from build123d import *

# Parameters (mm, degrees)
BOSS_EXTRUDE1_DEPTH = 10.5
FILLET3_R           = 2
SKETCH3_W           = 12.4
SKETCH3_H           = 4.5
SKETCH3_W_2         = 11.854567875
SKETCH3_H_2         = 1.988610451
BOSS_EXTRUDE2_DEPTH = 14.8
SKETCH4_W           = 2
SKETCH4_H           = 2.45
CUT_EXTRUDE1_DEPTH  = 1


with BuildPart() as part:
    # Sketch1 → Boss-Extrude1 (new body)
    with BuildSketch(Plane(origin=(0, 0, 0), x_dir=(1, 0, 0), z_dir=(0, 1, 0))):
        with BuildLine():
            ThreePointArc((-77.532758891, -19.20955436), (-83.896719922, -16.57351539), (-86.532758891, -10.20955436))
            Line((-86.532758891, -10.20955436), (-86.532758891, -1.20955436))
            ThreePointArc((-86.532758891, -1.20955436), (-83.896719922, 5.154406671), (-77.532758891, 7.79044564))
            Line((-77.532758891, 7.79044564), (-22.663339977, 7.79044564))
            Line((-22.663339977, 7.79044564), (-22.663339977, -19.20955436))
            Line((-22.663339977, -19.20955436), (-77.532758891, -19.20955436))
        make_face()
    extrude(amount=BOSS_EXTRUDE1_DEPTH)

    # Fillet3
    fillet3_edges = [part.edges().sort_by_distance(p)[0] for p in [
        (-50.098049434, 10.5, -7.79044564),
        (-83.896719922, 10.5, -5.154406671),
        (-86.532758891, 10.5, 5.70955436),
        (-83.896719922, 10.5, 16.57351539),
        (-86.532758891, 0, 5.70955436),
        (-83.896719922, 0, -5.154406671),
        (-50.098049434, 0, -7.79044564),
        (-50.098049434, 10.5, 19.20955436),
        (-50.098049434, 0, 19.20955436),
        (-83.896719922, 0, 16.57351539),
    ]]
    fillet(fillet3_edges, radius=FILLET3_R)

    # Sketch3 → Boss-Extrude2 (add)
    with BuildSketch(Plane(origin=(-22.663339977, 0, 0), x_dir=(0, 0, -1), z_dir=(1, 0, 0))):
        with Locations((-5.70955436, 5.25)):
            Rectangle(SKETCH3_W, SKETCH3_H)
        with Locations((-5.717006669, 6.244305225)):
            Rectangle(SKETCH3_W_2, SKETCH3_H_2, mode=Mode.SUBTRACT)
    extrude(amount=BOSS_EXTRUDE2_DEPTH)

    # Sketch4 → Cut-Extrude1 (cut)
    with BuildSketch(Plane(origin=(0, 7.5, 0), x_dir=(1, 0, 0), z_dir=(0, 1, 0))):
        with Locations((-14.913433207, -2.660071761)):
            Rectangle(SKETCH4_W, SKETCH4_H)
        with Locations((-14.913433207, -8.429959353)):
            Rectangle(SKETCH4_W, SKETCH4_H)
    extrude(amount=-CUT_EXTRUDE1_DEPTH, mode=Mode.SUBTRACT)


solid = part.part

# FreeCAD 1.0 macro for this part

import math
import FreeCAD as App
import Part
import Sketcher

V = App.Vector


def edges_at(feature, points):
    """Names of the edges that pass closest to the given points."""
    edges = feature.Shape.Edges
    near = lambda p: min(range(len(edges)), key=lambda i: edges[i].distToShape(Part.Vertex(*p))[0])
    return sorted({f"Edge{near(p) + 1}" for p in points})


def add_polygon(sketch, points):
    """Adds a closed chain of lines whose ends are joined by coincident constraints."""
    first, n = sketch.GeometryCount, len(points)
    for a, b in zip(points, points[1:] + points[:1]):
        sketch.addGeometry(Part.LineSegment(App.Vector(*a, 0), App.Vector(*b, 0)), False)
    for i in range(n):
        sketch.addConstraint(Sketcher.Constraint("Coincident", first + i, 2, first + (i + 1) % n, 1))

doc = App.newDocument("Part")
params = doc.addObject("Spreadsheet::Sheet", "Params")
for row, (alias, value) in enumerate([
    ("sketch1_radius", "9 mm"),
    ("sketch1_height", "27 mm"),
    ("pad1_length", "10.5 mm"),
    ("fillet_radius", "2 mm"),
    ("sketch2_width", "4.5 mm"),
    ("sketch2_height", "12.4 mm"),
    ("pad2_length", "14.8 mm"),
    ("sketch3_width", "2 mm"),
    ("sketch3_height", "2.45 mm"),
    ("pocket1_length", "1 mm"),
], start=1):
    params.set(f"A{row}", alias)
    params.set(f"B{row}", "=" + value)
    params.setAlias(f"B{row}", alias)

body = doc.addObject("PartDesign::Body", "Body")

# Sketch on XZ plane
sketch1 = doc.addObject("Sketcher::SketchObject", "Sketch")
body.addObject(sketch1)
sketch1.AttachmentSupport = (doc.XZ_Plane, [""])
sketch1.MapMode = "FlatFace"
sketch1.addGeometry([
    Part.ArcOfCircle(Part.Circle(V(-77.532759, 10.209554, 0), V(0, 0, 1), 9), math.radians(90), math.radians(180)),  # 0
    Part.LineSegment(V(-77.532759, 19.209554, 0), V(-22.66334, 19.209554, 0)),  # 1
    Part.LineSegment(V(-22.66334, 19.209554, 0), V(-22.66334, -7.790446, 0)),  # 2
    Part.LineSegment(V(-22.66334, -7.790446, 0), V(-77.532759, -7.790446, 0)),  # 3
    Part.ArcOfCircle(Part.Circle(V(-77.532759, 1.209554, 0), V(0, 0, 1), 9), math.radians(180), math.radians(270)),  # 4
    Part.LineSegment(V(-86.532759, 1.209554, 0), V(-86.532759, 10.209554, 0)),  # 5
], False)
sketch1.addConstraint([
    Sketcher.Constraint("Tangent", 0, 1, 1, 1),
    Sketcher.Constraint("Coincident", 1, 2, 2, 1),
    Sketcher.Constraint("Coincident", 2, 2, 3, 1),
    Sketcher.Constraint("Tangent", 3, 2, 4, 2),
    Sketcher.Constraint("Tangent", 4, 1, 5, 1),
    Sketcher.Constraint("Tangent", 5, 2, 0, 2),
    Sketcher.Constraint("Horizontal", 1),
    Sketcher.Constraint("Vertical", 2),
    Sketcher.Constraint("Horizontal", 3),
    Sketcher.Constraint("Vertical", 5),
    Sketcher.Constraint("Equal", 0, 4),
    Sketcher.Constraint("Radius", 0, 9.0),
    Sketcher.Constraint("DistanceY", 2, 2, 2, 1, 27.0),
    Sketcher.Constraint("DistanceX", 1, 1, 1, 2, 54.869419),
    Sketcher.Constraint("DistanceX", 0, 3, -1, 1, 77.532759),
    Sketcher.Constraint("DistanceY", -1, 1, 0, 3, 10.209554),
])
sketch1.setExpression("Constraints[11]", "Params.sketch1_radius")
sketch1.setExpression("Constraints[12]", "Params.sketch1_height")
pad1 = doc.addObject("PartDesign::Pad", "Pad")
body.addObject(pad1)
pad1.Profile = sketch1
pad1.setExpression("Length", "Params.pad1_length")
pad1.Reversed = True
doc.recompute()

fillet = doc.addObject("PartDesign::Fillet", "Fillet")
body.addObject(fillet)
fillet.Base = (pad1, edges_at(pad1, [
    (-50.098, 10.5, -7.79),
    (-83.897, 10.5, -5.154),
    (-86.533, 10.5, 5.71),
    (-83.897, 10.5, 16.574),
    (-86.533, 0, 5.71),
    (-83.897, 0, -5.154),
    (-50.098, 0, -7.79),
    (-50.098, 10.5, 19.21),
    (-50.098, 0, 19.21),
    (-83.897, 0, 16.574),
]))
fillet.setExpression("Radius", "Params.fillet_radius")

# Sketch on YZ plane
sketch2 = doc.addObject("Sketcher::SketchObject", "Sketch001")
body.addObject(sketch2)
sketch2.AttachmentSupport = (doc.YZ_Plane, [""])
sketch2.MapMode = "FlatFace"
sketch2.AttachmentOffset = App.Placement(V(0, 0, -22.66334), App.Rotation())
add_polygon(sketch2, [(7.5, 11.909554), (3, 11.909554), (3, -0.490446), (7.5, -0.490446)])  # lines 0-3
add_polygon(sketch2, [(5.25, -0.210277), (5.25, 11.644291), (7.23861, 11.644291), (7.23861, -0.210277)])  # lines 4-7
sketch2.addConstraint([
    Sketcher.Constraint("Horizontal", 0),
    Sketcher.Constraint("Vertical", 1),
    Sketcher.Constraint("Horizontal", 2),
    Sketcher.Constraint("Vertical", 3),
    Sketcher.Constraint("Vertical", 4),
    Sketcher.Constraint("Horizontal", 5),
    Sketcher.Constraint("Vertical", 6),
    Sketcher.Constraint("Horizontal", 7),
    Sketcher.Constraint("DistanceX", 0, 2, 0, 1, 4.5),
    Sketcher.Constraint("DistanceY", 1, 2, 1, 1, 12.4),
    Sketcher.Constraint("DistanceX", -1, 1, 0, 2, 3.0),
    Sketcher.Constraint("DistanceX", -1, 1, 4, 2, 5.25),
    Sketcher.Constraint("DistanceX", 5, 1, 5, 2, 1.98861),
    Sketcher.Constraint("DistanceY", 4, 1, 4, 2, 11.854568),
    Sketcher.Constraint("DistanceY", -1, 1, 4, 2, 11.644291),
    Sketcher.Constraint("DistanceY", 2, 2, 6, 2, 0.280168),
])
sketch2.setExpression("Constraints[16]", "Params.sketch2_width")
sketch2.setExpression("Constraints[17]", "Params.sketch2_height")
pad2 = doc.addObject("PartDesign::Pad", "Pad001")
body.addObject(pad2)
pad2.Profile = sketch2
pad2.setExpression("Length", "Params.pad2_length")

# Sketch on XZ plane
sketch3 = doc.addObject("Sketcher::SketchObject", "Sketch002")
body.addObject(sketch3)
sketch3.AttachmentSupport = (doc.XZ_Plane, [""])
sketch3.MapMode = "FlatFace"
sketch3.AttachmentOffset = App.Placement(V(0, 0, -7.5), App.Rotation())
add_polygon(sketch3, [(-15.913433, 1.435072), (-15.913433, 3.885072), (-13.913433, 3.885072), (-13.913433, 1.435072)])  # lines 0-3
add_polygon(sketch3, [(-15.913433, 7.204959), (-15.913433, 9.654959), (-13.913433, 9.654959), (-13.913433, 7.204959)])  # lines 4-7
sketch3.addConstraint([
    Sketcher.Constraint("Vertical", 0),
    Sketcher.Constraint("Horizontal", 1),
    Sketcher.Constraint("Vertical", 2),
    Sketcher.Constraint("Horizontal", 3),
    Sketcher.Constraint("Vertical", 4),
    Sketcher.Constraint("Horizontal", 5),
    Sketcher.Constraint("Vertical", 6),
    Sketcher.Constraint("Horizontal", 7),
    Sketcher.Constraint("Vertical", 3, 2, 4, 2),
    Sketcher.Constraint("Vertical", 2, 2, 5, 2),
    Sketcher.Constraint("Equal", 2, 4),
    Sketcher.Constraint("DistanceX", 1, 1, 1, 2, 2.0),
    Sketcher.Constraint("DistanceY", 0, 1, 0, 2, 2.45),
    Sketcher.Constraint("DistanceY", -1, 1, 0, 2, 3.885072),
    Sketcher.Constraint("DistanceY", -1, 1, 4, 2, 9.654959),
    Sketcher.Constraint("DistanceX", 0, 2, -1, 1, 15.913433),
])
sketch3.setExpression("Constraints[19]", "Params.sketch3_width")
sketch3.setExpression("Constraints[20]", "Params.sketch3_height")
pocket1 = doc.addObject("PartDesign::Pocket", "Pocket")
body.addObject(pocket1)
pocket1.Profile = sketch3
pocket1.setExpression("Length", "Params.pocket1_length")
pocket1.Reversed = True

doc.recompute()
